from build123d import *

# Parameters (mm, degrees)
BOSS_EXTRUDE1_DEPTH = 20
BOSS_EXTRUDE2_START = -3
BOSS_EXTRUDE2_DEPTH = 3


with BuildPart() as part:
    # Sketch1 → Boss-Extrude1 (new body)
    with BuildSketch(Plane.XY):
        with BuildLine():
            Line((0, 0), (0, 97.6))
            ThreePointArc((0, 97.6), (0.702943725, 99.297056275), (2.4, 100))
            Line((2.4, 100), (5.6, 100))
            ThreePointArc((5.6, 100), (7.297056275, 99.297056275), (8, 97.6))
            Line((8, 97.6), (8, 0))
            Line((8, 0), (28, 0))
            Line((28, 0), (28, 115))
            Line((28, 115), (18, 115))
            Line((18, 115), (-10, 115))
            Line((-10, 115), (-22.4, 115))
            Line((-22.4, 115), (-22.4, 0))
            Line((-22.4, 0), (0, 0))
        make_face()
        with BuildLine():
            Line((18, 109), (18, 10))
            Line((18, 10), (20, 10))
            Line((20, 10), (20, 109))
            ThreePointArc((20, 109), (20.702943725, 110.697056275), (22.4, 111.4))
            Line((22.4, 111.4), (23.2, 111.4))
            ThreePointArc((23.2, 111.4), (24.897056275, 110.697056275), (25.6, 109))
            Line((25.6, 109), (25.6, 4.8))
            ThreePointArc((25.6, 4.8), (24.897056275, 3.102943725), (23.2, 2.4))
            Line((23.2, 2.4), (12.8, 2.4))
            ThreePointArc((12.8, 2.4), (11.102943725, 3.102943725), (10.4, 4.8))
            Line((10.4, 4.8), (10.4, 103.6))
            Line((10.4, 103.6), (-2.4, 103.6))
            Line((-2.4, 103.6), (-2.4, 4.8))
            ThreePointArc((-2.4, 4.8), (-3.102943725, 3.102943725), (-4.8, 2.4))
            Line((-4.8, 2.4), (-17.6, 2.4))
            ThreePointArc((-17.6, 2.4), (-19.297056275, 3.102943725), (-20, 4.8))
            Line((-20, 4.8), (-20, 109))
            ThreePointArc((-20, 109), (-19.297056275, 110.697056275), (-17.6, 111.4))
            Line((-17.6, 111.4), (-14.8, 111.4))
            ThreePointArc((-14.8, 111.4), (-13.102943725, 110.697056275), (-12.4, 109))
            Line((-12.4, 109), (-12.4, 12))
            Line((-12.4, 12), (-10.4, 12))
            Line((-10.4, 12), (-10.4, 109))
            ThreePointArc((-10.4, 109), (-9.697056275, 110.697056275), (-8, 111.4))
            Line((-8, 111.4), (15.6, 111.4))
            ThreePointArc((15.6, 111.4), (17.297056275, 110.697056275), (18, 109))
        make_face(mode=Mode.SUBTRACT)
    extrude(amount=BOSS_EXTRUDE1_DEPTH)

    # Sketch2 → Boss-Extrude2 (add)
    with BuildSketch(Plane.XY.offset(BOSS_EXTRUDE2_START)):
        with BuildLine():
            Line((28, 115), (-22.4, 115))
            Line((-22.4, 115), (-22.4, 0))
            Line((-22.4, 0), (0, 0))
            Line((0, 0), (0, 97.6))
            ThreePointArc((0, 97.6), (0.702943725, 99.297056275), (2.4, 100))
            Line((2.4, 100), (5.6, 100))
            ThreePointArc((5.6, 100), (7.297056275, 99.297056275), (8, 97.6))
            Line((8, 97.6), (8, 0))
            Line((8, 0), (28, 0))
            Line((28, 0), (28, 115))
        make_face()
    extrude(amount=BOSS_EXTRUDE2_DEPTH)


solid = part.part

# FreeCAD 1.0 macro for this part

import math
import FreeCAD as App
import Part
import Sketcher
Q = App.Units.Quantity

doc = App.newDocument("Part")
body = doc.addObject("PartDesign::Body", "Body")

sketch1 = doc.addObject("Sketcher::SketchObject", "Sketch")
body.addObject(sketch1)
sketch1.AttachmentSupport = (doc.XY_Plane, [""])
sketch1.MapMode = "FlatFace"
sketch1.addGeometry([
    Part.LineSegment(App.Vector(0, 0, 0), App.Vector(0, 97.6, 0)),
    Part.ArcOfCircle(Part.Circle(App.Vector(2.4, 97.6, 0), App.Vector(0, 0, 1), 2.4), math.radians(90), math.radians(180)),
    Part.LineSegment(App.Vector(2.4, 100, 0), App.Vector(5.6, 100, 0)),
    Part.ArcOfCircle(Part.Circle(App.Vector(5.6, 97.6, 0), App.Vector(0, 0, 1), 2.4), math.radians(0), math.radians(90)),
    Part.LineSegment(App.Vector(8, 97.6, 0), App.Vector(8, 0, 0)),
    Part.LineSegment(App.Vector(8, 0, 0), App.Vector(28, 0, 0)),
    Part.LineSegment(App.Vector(28, 0, 0), App.Vector(28, 115, 0)),
    Part.LineSegment(App.Vector(28, 115, 0), App.Vector(-22.4, 115, 0)),
    Part.LineSegment(App.Vector(-22.4, 115, 0), App.Vector(-22.4, 0, 0)),
    Part.LineSegment(App.Vector(-22.4, 0, 0), App.Vector(0, 0, 0)),
    Part.ArcOfCircle(Part.Circle(App.Vector(15.6, 109, 0), App.Vector(0, 0, 1), 2.4), math.radians(0), math.radians(90)),
    Part.LineSegment(App.Vector(18, 109, 0), App.Vector(18, 10, 0)),
    Part.LineSegment(App.Vector(18, 10, 0), App.Vector(20, 10, 0)),
    Part.LineSegment(App.Vector(20, 10, 0), App.Vector(20, 109, 0)),
    Part.ArcOfCircle(Part.Circle(App.Vector(22.4, 109, 0), App.Vector(0, 0, 1), 2.4), math.radians(90), math.radians(180)),
    Part.LineSegment(App.Vector(22.4, 111.4, 0), App.Vector(23.2, 111.4, 0)),
    Part.ArcOfCircle(Part.Circle(App.Vector(23.2, 109, 0), App.Vector(0, 0, 1), 2.4), math.radians(0), math.radians(90)),
    Part.LineSegment(App.Vector(25.6, 109, 0), App.Vector(25.6, 4.8, 0)),
    Part.ArcOfCircle(Part.Circle(App.Vector(23.2, 4.8, 0), App.Vector(0, 0, 1), 2.4), math.radians(-90), math.radians(0)),
    Part.LineSegment(App.Vector(23.2, 2.4, 0), App.Vector(12.8, 2.4, 0)),
    Part.ArcOfCircle(Part.Circle(App.Vector(12.8, 4.8, 0), App.Vector(0, 0, 1), 2.4), math.radians(180), math.radians(270)),
    Part.LineSegment(App.Vector(10.4, 4.8, 0), App.Vector(10.4, 103.6, 0)),
    Part.LineSegment(App.Vector(10.4, 103.6, 0), App.Vector(-2.4, 103.6, 0)),
    Part.LineSegment(App.Vector(-2.4, 103.6, 0), App.Vector(-2.4, 4.8, 0)),
    Part.ArcOfCircle(Part.Circle(App.Vector(-4.8, 4.8, 0), App.Vector(0, 0, 1), 2.4), math.radians(-90), math.radians(0)),
    Part.LineSegment(App.Vector(-4.8, 2.4, 0), App.Vector(-17.6, 2.4, 0)),
    Part.ArcOfCircle(Part.Circle(App.Vector(-17.6, 4.8, 0), App.Vector(0, 0, 1), 2.4), math.radians(180), math.radians(270)),
    Part.LineSegment(App.Vector(-20, 4.8, 0), App.Vector(-20, 109, 0)),
    Part.ArcOfCircle(Part.Circle(App.Vector(-17.6, 109, 0), App.Vector(0, 0, 1), 2.4), math.radians(90), math.radians(180)),
    Part.LineSegment(App.Vector(-17.6, 111.4, 0), App.Vector(-14.8, 111.4, 0)),
    Part.ArcOfCircle(Part.Circle(App.Vector(-14.8, 109, 0), App.Vector(0, 0, 1), 2.4), math.radians(0), math.radians(90)),
    Part.LineSegment(App.Vector(-12.4, 109, 0), App.Vector(-12.4, 12, 0)),
    Part.LineSegment(App.Vector(-12.4, 12, 0), App.Vector(-10.4, 12, 0)),
    Part.LineSegment(App.Vector(-10.4, 12, 0), App.Vector(-10.4, 109, 0)),
    Part.ArcOfCircle(Part.Circle(App.Vector(-8, 109, 0), App.Vector(0, 0, 1), 2.4), math.radians(90), math.radians(180)),
    Part.LineSegment(App.Vector(-8, 111.4, 0), App.Vector(15.6, 111.4, 0)),
], False)
sketch1.addConstraint([
    Sketcher.Constraint("Tangent", 0, 2, 1, 2),
    Sketcher.Constraint("Tangent", 1, 1, 2, 1),
    Sketcher.Constraint("Tangent", 2, 2, 3, 2),
    Sketcher.Constraint("Tangent", 3, 1, 4, 1),
    Sketcher.Constraint("Coincident", 4, 2, 5, 1),
    Sketcher.Constraint("Coincident", 5, 2, 6, 1),
    Sketcher.Constraint("Coincident", 6, 2, 7, 1),
    Sketcher.Constraint("Coincident", 7, 2, 8, 1),
    Sketcher.Constraint("Coincident", 8, 2, 9, 1),
    Sketcher.Constraint("Coincident", 9, 2, 0, 1),
    Sketcher.Constraint("Tangent", 10, 1, 11, 1),
    Sketcher.Constraint("Coincident", 11, 2, 12, 1),
    Sketcher.Constraint("Coincident", 12, 2, 13, 1),
    Sketcher.Constraint("Tangent", 13, 2, 14, 2),
    Sketcher.Constraint("Tangent", 14, 1, 15, 1),
    Sketcher.Constraint("Tangent", 15, 2, 16, 2),
    Sketcher.Constraint("Tangent", 16, 1, 17, 1),
    Sketcher.Constraint("Tangent", 17, 2, 18, 2),
    Sketcher.Constraint("Tangent", 18, 1, 19, 1),
    Sketcher.Constraint("Tangent", 19, 2, 20, 2),
    Sketcher.Constraint("Tangent", 20, 1, 21, 1),
    Sketcher.Constraint("Coincident", 21, 2, 22, 1),
    Sketcher.Constraint("Coincident", 22, 2, 23, 1),
    Sketcher.Constraint("Tangent", 23, 2, 24, 2),
    Sketcher.Constraint("Tangent", 24, 1, 25, 1),
    Sketcher.Constraint("Tangent", 25, 2, 26, 2),
    Sketcher.Constraint("Tangent", 26, 1, 27, 1),
    Sketcher.Constraint("Tangent", 27, 2, 28, 2),
    Sketcher.Constraint("Tangent", 28, 1, 29, 1),
    Sketcher.Constraint("Tangent", 29, 2, 30, 2),
    Sketcher.Constraint("Tangent", 30, 1, 31, 1),
    Sketcher.Constraint("Coincident", 31, 2, 32, 1),
    Sketcher.Constraint("Coincident", 32, 2, 33, 1),
    Sketcher.Constraint("Tangent", 33, 2, 34, 2),
    Sketcher.Constraint("Tangent", 34, 1, 35, 1),
    Sketcher.Constraint("Tangent", 35, 2, 10, 2),
    Sketcher.Constraint("Vertical", 0),
    Sketcher.Constraint("Horizontal", 2),
    Sketcher.Constraint("Vertical", 4),
    Sketcher.Constraint("Horizontal", 5),
    Sketcher.Constraint("Vertical", 6),
    Sketcher.Constraint("Horizontal", 7),
    Sketcher.Constraint("Vertical", 8),
    Sketcher.Constraint("Horizontal", 9),
    Sketcher.Constraint("Vertical", 11),
    Sketcher.Constraint("Horizontal", 12),
    Sketcher.Constraint("Vertical", 13),
    Sketcher.Constraint("Horizontal", 15),
    Sketcher.Constraint("Vertical", 17),
    Sketcher.Constraint("Horizontal", 19),
    Sketcher.Constraint("Vertical", 21),
    Sketcher.Constraint("Horizontal", 22),
    Sketcher.Constraint("Vertical", 23),
    Sketcher.Constraint("Horizontal", 25),
    Sketcher.Constraint("Vertical", 27),
    Sketcher.Constraint("Horizontal", 29),
    Sketcher.Constraint("Vertical", 31),
    Sketcher.Constraint("Horizontal", 32),
    Sketcher.Constraint("Vertical", 33),
    Sketcher.Constraint("Horizontal", 35),
    Sketcher.Constraint("Coincident", 9, 2, -1, 1),
    Sketcher.Constraint("Equal", 1, 3),
    Sketcher.Constraint("Equal", 3, 10),
    Sketcher.Constraint("Equal", 10, 14),
    Sketcher.Constraint("Equal", 14, 16),
    Sketcher.Constraint("Equal", 16, 18),
    Sketcher.Constraint("Equal", 18, 20),
    Sketcher.Constraint("Equal", 20, 24),
    Sketcher.Constraint("Equal", 24, 26),
    Sketcher.Constraint("Equal", 26, 28),
    Sketcher.Constraint("Equal", 28, 30),
    Sketcher.Constraint("Equal", 30, 34),
    Sketcher.Constraint("Symmetric", 13, 2, 27, 2, -2),
    Sketcher.Constraint("PointOnObject", 4, 2, -1),
    Sketcher.Constraint("Horizontal", 10, 3, 14, 3),
    Sketcher.Constraint("Horizontal", 20, 3, 24, 3),
    Sketcher.Constraint("Equal", 22, 25),
    Sketcher.Constraint("Equal", 12, 32),
    Sketcher.Constraint("Radius", 1, Q("2.4 mm")),
    Sketcher.Constraint("DistanceX", 5, 1, 5, 2, Q("20 mm")),
    Sketcher.Constraint("DistanceX", 12, 1, 12, 2, Q("2 mm")),
    Sketcher.Constraint("DistanceY", 6, 1, 6, 2, Q("115 mm")),
    Sketcher.Constraint("DistanceY", 11, 2, 11, 1, Q("99 mm")),
    Sketcher.Constraint("DistanceY", 31, 2, 31, 1, Q("97 mm")),
    Sketcher.Constraint("DistanceX", 2, 1, 2, 2, Q("3.2 mm")),
    Sketcher.Constraint("DistanceX", 7, 2, 7, 1, Q("50.4 mm")),
    Sketcher.Constraint("DistanceX", 15, 1, 15, 2, Q("0.8 mm")),
    Sketcher.Constraint("DistanceX", 19, 2, 19, 1, Q("10.4 mm")),
    Sketcher.Constraint("DistanceX", 22, 2, 22, 1, Q("12.8 mm")),
    Sketcher.Constraint("DistanceX", 29, 1, 29, 2, Q("2.8 mm")),
    Sketcher.Constraint("DistanceY", 0, 1, 0, 2, Q("97.6 mm")),
    Sketcher.Constraint("DistanceY", 17, 2, 17, 1, Q("104.2 mm")),
    Sketcher.Constraint("DistanceY", 21, 1, 21, 2, Q("98.8 mm")),
    Sketcher.Constraint("DistanceY", -1, 1, 10, 3, Q("109 mm")),
])
pad1 = doc.addObject("PartDesign::Pad", "Pad")
body.addObject(pad1)
pad1.Profile = sketch1
pad1.Length = 20

sketch2 = doc.addObject("Sketcher::SketchObject", "Sketch001")
body.addObject(sketch2)
sketch2.AttachmentSupport = (doc.XY_Plane, [""])
sketch2.MapMode = "FlatFace"
sketch2.AttachmentOffset = App.Placement(App.Vector(0, 0, -3), App.Rotation())
sketch2.addGeometry([
    Part.LineSegment(App.Vector(28, 115, 0), App.Vector(-22.4, 115, 0)),
    Part.LineSegment(App.Vector(-22.4, 115, 0), App.Vector(-22.4, 0, 0)),
    Part.LineSegment(App.Vector(-22.4, 0, 0), App.Vector(0, 0, 0)),
    Part.LineSegment(App.Vector(0, 0, 0), App.Vector(0, 97.6, 0)),
    Part.ArcOfCircle(Part.Circle(App.Vector(2.4, 97.6, 0), App.Vector(0, 0, 1), 2.4), math.radians(90), math.radians(180)),
    Part.LineSegment(App.Vector(2.4, 100, 0), App.Vector(5.6, 100, 0)),
    Part.ArcOfCircle(Part.Circle(App.Vector(5.6, 97.6, 0), App.Vector(0, 0, 1), 2.4), math.radians(0), math.radians(90)),
    Part.LineSegment(App.Vector(8, 97.6, 0), App.Vector(8, 0, 0)),
    Part.LineSegment(App.Vector(8, 0, 0), App.Vector(28, 0, 0)),
    Part.LineSegment(App.Vector(28, 0, 0), App.Vector(28, 115, 0)),
], False)
sketch2.addConstraint([
    Sketcher.Constraint("Coincident", 0, 2, 1, 1),
    Sketcher.Constraint("Coincident", 1, 2, 2, 1),
    Sketcher.Constraint("Coincident", 2, 2, 3, 1),
    Sketcher.Constraint("Tangent", 3, 2, 4, 2),
    Sketcher.Constraint("Tangent", 4, 1, 5, 1),
    Sketcher.Constraint("Tangent", 5, 2, 6, 2),
    Sketcher.Constraint("Tangent", 6, 1, 7, 1),
    Sketcher.Constraint("Coincident", 7, 2, 8, 1),
    Sketcher.Constraint("Coincident", 8, 2, 9, 1),
    Sketcher.Constraint("Coincident", 9, 2, 0, 1),
    Sketcher.Constraint("Horizontal", 0),
    Sketcher.Constraint("Vertical", 1),
    Sketcher.Constraint("Horizontal", 2),
    Sketcher.Constraint("Vertical", 3),
    Sketcher.Constraint("Horizontal", 5),
    Sketcher.Constraint("Vertical", 7),
    Sketcher.Constraint("Horizontal", 8),
    Sketcher.Constraint("Vertical", 9),
    Sketcher.Constraint("Coincident", 2, 2, -1, 1),
    Sketcher.Constraint("Equal", 4, 6),
    Sketcher.Constraint("PointOnObject", 7, 2, -1),
    Sketcher.Constraint("Radius", 4, Q("2.4 mm")),
    Sketcher.Constraint("DistanceX", 8, 1, 8, 2, Q("20 mm")),
    Sketcher.Constraint("DistanceY", 1, 2, 1, 1, Q("115 mm")),
    Sketcher.Constraint("DistanceX", 0, 2, 0, 1, Q("50.4 mm")),
    Sketcher.Constraint("DistanceX", 2, 1, 2, 2, Q("22.4 mm")),
    Sketcher.Constraint("DistanceY", 3, 1, 3, 2, Q("97.6 mm")),
])
pad2 = doc.addObject("PartDesign::Pad", "Pad001")
body.addObject(pad2)
pad2.Profile = sketch2
pad2.Length = 3

doc.recompute()
